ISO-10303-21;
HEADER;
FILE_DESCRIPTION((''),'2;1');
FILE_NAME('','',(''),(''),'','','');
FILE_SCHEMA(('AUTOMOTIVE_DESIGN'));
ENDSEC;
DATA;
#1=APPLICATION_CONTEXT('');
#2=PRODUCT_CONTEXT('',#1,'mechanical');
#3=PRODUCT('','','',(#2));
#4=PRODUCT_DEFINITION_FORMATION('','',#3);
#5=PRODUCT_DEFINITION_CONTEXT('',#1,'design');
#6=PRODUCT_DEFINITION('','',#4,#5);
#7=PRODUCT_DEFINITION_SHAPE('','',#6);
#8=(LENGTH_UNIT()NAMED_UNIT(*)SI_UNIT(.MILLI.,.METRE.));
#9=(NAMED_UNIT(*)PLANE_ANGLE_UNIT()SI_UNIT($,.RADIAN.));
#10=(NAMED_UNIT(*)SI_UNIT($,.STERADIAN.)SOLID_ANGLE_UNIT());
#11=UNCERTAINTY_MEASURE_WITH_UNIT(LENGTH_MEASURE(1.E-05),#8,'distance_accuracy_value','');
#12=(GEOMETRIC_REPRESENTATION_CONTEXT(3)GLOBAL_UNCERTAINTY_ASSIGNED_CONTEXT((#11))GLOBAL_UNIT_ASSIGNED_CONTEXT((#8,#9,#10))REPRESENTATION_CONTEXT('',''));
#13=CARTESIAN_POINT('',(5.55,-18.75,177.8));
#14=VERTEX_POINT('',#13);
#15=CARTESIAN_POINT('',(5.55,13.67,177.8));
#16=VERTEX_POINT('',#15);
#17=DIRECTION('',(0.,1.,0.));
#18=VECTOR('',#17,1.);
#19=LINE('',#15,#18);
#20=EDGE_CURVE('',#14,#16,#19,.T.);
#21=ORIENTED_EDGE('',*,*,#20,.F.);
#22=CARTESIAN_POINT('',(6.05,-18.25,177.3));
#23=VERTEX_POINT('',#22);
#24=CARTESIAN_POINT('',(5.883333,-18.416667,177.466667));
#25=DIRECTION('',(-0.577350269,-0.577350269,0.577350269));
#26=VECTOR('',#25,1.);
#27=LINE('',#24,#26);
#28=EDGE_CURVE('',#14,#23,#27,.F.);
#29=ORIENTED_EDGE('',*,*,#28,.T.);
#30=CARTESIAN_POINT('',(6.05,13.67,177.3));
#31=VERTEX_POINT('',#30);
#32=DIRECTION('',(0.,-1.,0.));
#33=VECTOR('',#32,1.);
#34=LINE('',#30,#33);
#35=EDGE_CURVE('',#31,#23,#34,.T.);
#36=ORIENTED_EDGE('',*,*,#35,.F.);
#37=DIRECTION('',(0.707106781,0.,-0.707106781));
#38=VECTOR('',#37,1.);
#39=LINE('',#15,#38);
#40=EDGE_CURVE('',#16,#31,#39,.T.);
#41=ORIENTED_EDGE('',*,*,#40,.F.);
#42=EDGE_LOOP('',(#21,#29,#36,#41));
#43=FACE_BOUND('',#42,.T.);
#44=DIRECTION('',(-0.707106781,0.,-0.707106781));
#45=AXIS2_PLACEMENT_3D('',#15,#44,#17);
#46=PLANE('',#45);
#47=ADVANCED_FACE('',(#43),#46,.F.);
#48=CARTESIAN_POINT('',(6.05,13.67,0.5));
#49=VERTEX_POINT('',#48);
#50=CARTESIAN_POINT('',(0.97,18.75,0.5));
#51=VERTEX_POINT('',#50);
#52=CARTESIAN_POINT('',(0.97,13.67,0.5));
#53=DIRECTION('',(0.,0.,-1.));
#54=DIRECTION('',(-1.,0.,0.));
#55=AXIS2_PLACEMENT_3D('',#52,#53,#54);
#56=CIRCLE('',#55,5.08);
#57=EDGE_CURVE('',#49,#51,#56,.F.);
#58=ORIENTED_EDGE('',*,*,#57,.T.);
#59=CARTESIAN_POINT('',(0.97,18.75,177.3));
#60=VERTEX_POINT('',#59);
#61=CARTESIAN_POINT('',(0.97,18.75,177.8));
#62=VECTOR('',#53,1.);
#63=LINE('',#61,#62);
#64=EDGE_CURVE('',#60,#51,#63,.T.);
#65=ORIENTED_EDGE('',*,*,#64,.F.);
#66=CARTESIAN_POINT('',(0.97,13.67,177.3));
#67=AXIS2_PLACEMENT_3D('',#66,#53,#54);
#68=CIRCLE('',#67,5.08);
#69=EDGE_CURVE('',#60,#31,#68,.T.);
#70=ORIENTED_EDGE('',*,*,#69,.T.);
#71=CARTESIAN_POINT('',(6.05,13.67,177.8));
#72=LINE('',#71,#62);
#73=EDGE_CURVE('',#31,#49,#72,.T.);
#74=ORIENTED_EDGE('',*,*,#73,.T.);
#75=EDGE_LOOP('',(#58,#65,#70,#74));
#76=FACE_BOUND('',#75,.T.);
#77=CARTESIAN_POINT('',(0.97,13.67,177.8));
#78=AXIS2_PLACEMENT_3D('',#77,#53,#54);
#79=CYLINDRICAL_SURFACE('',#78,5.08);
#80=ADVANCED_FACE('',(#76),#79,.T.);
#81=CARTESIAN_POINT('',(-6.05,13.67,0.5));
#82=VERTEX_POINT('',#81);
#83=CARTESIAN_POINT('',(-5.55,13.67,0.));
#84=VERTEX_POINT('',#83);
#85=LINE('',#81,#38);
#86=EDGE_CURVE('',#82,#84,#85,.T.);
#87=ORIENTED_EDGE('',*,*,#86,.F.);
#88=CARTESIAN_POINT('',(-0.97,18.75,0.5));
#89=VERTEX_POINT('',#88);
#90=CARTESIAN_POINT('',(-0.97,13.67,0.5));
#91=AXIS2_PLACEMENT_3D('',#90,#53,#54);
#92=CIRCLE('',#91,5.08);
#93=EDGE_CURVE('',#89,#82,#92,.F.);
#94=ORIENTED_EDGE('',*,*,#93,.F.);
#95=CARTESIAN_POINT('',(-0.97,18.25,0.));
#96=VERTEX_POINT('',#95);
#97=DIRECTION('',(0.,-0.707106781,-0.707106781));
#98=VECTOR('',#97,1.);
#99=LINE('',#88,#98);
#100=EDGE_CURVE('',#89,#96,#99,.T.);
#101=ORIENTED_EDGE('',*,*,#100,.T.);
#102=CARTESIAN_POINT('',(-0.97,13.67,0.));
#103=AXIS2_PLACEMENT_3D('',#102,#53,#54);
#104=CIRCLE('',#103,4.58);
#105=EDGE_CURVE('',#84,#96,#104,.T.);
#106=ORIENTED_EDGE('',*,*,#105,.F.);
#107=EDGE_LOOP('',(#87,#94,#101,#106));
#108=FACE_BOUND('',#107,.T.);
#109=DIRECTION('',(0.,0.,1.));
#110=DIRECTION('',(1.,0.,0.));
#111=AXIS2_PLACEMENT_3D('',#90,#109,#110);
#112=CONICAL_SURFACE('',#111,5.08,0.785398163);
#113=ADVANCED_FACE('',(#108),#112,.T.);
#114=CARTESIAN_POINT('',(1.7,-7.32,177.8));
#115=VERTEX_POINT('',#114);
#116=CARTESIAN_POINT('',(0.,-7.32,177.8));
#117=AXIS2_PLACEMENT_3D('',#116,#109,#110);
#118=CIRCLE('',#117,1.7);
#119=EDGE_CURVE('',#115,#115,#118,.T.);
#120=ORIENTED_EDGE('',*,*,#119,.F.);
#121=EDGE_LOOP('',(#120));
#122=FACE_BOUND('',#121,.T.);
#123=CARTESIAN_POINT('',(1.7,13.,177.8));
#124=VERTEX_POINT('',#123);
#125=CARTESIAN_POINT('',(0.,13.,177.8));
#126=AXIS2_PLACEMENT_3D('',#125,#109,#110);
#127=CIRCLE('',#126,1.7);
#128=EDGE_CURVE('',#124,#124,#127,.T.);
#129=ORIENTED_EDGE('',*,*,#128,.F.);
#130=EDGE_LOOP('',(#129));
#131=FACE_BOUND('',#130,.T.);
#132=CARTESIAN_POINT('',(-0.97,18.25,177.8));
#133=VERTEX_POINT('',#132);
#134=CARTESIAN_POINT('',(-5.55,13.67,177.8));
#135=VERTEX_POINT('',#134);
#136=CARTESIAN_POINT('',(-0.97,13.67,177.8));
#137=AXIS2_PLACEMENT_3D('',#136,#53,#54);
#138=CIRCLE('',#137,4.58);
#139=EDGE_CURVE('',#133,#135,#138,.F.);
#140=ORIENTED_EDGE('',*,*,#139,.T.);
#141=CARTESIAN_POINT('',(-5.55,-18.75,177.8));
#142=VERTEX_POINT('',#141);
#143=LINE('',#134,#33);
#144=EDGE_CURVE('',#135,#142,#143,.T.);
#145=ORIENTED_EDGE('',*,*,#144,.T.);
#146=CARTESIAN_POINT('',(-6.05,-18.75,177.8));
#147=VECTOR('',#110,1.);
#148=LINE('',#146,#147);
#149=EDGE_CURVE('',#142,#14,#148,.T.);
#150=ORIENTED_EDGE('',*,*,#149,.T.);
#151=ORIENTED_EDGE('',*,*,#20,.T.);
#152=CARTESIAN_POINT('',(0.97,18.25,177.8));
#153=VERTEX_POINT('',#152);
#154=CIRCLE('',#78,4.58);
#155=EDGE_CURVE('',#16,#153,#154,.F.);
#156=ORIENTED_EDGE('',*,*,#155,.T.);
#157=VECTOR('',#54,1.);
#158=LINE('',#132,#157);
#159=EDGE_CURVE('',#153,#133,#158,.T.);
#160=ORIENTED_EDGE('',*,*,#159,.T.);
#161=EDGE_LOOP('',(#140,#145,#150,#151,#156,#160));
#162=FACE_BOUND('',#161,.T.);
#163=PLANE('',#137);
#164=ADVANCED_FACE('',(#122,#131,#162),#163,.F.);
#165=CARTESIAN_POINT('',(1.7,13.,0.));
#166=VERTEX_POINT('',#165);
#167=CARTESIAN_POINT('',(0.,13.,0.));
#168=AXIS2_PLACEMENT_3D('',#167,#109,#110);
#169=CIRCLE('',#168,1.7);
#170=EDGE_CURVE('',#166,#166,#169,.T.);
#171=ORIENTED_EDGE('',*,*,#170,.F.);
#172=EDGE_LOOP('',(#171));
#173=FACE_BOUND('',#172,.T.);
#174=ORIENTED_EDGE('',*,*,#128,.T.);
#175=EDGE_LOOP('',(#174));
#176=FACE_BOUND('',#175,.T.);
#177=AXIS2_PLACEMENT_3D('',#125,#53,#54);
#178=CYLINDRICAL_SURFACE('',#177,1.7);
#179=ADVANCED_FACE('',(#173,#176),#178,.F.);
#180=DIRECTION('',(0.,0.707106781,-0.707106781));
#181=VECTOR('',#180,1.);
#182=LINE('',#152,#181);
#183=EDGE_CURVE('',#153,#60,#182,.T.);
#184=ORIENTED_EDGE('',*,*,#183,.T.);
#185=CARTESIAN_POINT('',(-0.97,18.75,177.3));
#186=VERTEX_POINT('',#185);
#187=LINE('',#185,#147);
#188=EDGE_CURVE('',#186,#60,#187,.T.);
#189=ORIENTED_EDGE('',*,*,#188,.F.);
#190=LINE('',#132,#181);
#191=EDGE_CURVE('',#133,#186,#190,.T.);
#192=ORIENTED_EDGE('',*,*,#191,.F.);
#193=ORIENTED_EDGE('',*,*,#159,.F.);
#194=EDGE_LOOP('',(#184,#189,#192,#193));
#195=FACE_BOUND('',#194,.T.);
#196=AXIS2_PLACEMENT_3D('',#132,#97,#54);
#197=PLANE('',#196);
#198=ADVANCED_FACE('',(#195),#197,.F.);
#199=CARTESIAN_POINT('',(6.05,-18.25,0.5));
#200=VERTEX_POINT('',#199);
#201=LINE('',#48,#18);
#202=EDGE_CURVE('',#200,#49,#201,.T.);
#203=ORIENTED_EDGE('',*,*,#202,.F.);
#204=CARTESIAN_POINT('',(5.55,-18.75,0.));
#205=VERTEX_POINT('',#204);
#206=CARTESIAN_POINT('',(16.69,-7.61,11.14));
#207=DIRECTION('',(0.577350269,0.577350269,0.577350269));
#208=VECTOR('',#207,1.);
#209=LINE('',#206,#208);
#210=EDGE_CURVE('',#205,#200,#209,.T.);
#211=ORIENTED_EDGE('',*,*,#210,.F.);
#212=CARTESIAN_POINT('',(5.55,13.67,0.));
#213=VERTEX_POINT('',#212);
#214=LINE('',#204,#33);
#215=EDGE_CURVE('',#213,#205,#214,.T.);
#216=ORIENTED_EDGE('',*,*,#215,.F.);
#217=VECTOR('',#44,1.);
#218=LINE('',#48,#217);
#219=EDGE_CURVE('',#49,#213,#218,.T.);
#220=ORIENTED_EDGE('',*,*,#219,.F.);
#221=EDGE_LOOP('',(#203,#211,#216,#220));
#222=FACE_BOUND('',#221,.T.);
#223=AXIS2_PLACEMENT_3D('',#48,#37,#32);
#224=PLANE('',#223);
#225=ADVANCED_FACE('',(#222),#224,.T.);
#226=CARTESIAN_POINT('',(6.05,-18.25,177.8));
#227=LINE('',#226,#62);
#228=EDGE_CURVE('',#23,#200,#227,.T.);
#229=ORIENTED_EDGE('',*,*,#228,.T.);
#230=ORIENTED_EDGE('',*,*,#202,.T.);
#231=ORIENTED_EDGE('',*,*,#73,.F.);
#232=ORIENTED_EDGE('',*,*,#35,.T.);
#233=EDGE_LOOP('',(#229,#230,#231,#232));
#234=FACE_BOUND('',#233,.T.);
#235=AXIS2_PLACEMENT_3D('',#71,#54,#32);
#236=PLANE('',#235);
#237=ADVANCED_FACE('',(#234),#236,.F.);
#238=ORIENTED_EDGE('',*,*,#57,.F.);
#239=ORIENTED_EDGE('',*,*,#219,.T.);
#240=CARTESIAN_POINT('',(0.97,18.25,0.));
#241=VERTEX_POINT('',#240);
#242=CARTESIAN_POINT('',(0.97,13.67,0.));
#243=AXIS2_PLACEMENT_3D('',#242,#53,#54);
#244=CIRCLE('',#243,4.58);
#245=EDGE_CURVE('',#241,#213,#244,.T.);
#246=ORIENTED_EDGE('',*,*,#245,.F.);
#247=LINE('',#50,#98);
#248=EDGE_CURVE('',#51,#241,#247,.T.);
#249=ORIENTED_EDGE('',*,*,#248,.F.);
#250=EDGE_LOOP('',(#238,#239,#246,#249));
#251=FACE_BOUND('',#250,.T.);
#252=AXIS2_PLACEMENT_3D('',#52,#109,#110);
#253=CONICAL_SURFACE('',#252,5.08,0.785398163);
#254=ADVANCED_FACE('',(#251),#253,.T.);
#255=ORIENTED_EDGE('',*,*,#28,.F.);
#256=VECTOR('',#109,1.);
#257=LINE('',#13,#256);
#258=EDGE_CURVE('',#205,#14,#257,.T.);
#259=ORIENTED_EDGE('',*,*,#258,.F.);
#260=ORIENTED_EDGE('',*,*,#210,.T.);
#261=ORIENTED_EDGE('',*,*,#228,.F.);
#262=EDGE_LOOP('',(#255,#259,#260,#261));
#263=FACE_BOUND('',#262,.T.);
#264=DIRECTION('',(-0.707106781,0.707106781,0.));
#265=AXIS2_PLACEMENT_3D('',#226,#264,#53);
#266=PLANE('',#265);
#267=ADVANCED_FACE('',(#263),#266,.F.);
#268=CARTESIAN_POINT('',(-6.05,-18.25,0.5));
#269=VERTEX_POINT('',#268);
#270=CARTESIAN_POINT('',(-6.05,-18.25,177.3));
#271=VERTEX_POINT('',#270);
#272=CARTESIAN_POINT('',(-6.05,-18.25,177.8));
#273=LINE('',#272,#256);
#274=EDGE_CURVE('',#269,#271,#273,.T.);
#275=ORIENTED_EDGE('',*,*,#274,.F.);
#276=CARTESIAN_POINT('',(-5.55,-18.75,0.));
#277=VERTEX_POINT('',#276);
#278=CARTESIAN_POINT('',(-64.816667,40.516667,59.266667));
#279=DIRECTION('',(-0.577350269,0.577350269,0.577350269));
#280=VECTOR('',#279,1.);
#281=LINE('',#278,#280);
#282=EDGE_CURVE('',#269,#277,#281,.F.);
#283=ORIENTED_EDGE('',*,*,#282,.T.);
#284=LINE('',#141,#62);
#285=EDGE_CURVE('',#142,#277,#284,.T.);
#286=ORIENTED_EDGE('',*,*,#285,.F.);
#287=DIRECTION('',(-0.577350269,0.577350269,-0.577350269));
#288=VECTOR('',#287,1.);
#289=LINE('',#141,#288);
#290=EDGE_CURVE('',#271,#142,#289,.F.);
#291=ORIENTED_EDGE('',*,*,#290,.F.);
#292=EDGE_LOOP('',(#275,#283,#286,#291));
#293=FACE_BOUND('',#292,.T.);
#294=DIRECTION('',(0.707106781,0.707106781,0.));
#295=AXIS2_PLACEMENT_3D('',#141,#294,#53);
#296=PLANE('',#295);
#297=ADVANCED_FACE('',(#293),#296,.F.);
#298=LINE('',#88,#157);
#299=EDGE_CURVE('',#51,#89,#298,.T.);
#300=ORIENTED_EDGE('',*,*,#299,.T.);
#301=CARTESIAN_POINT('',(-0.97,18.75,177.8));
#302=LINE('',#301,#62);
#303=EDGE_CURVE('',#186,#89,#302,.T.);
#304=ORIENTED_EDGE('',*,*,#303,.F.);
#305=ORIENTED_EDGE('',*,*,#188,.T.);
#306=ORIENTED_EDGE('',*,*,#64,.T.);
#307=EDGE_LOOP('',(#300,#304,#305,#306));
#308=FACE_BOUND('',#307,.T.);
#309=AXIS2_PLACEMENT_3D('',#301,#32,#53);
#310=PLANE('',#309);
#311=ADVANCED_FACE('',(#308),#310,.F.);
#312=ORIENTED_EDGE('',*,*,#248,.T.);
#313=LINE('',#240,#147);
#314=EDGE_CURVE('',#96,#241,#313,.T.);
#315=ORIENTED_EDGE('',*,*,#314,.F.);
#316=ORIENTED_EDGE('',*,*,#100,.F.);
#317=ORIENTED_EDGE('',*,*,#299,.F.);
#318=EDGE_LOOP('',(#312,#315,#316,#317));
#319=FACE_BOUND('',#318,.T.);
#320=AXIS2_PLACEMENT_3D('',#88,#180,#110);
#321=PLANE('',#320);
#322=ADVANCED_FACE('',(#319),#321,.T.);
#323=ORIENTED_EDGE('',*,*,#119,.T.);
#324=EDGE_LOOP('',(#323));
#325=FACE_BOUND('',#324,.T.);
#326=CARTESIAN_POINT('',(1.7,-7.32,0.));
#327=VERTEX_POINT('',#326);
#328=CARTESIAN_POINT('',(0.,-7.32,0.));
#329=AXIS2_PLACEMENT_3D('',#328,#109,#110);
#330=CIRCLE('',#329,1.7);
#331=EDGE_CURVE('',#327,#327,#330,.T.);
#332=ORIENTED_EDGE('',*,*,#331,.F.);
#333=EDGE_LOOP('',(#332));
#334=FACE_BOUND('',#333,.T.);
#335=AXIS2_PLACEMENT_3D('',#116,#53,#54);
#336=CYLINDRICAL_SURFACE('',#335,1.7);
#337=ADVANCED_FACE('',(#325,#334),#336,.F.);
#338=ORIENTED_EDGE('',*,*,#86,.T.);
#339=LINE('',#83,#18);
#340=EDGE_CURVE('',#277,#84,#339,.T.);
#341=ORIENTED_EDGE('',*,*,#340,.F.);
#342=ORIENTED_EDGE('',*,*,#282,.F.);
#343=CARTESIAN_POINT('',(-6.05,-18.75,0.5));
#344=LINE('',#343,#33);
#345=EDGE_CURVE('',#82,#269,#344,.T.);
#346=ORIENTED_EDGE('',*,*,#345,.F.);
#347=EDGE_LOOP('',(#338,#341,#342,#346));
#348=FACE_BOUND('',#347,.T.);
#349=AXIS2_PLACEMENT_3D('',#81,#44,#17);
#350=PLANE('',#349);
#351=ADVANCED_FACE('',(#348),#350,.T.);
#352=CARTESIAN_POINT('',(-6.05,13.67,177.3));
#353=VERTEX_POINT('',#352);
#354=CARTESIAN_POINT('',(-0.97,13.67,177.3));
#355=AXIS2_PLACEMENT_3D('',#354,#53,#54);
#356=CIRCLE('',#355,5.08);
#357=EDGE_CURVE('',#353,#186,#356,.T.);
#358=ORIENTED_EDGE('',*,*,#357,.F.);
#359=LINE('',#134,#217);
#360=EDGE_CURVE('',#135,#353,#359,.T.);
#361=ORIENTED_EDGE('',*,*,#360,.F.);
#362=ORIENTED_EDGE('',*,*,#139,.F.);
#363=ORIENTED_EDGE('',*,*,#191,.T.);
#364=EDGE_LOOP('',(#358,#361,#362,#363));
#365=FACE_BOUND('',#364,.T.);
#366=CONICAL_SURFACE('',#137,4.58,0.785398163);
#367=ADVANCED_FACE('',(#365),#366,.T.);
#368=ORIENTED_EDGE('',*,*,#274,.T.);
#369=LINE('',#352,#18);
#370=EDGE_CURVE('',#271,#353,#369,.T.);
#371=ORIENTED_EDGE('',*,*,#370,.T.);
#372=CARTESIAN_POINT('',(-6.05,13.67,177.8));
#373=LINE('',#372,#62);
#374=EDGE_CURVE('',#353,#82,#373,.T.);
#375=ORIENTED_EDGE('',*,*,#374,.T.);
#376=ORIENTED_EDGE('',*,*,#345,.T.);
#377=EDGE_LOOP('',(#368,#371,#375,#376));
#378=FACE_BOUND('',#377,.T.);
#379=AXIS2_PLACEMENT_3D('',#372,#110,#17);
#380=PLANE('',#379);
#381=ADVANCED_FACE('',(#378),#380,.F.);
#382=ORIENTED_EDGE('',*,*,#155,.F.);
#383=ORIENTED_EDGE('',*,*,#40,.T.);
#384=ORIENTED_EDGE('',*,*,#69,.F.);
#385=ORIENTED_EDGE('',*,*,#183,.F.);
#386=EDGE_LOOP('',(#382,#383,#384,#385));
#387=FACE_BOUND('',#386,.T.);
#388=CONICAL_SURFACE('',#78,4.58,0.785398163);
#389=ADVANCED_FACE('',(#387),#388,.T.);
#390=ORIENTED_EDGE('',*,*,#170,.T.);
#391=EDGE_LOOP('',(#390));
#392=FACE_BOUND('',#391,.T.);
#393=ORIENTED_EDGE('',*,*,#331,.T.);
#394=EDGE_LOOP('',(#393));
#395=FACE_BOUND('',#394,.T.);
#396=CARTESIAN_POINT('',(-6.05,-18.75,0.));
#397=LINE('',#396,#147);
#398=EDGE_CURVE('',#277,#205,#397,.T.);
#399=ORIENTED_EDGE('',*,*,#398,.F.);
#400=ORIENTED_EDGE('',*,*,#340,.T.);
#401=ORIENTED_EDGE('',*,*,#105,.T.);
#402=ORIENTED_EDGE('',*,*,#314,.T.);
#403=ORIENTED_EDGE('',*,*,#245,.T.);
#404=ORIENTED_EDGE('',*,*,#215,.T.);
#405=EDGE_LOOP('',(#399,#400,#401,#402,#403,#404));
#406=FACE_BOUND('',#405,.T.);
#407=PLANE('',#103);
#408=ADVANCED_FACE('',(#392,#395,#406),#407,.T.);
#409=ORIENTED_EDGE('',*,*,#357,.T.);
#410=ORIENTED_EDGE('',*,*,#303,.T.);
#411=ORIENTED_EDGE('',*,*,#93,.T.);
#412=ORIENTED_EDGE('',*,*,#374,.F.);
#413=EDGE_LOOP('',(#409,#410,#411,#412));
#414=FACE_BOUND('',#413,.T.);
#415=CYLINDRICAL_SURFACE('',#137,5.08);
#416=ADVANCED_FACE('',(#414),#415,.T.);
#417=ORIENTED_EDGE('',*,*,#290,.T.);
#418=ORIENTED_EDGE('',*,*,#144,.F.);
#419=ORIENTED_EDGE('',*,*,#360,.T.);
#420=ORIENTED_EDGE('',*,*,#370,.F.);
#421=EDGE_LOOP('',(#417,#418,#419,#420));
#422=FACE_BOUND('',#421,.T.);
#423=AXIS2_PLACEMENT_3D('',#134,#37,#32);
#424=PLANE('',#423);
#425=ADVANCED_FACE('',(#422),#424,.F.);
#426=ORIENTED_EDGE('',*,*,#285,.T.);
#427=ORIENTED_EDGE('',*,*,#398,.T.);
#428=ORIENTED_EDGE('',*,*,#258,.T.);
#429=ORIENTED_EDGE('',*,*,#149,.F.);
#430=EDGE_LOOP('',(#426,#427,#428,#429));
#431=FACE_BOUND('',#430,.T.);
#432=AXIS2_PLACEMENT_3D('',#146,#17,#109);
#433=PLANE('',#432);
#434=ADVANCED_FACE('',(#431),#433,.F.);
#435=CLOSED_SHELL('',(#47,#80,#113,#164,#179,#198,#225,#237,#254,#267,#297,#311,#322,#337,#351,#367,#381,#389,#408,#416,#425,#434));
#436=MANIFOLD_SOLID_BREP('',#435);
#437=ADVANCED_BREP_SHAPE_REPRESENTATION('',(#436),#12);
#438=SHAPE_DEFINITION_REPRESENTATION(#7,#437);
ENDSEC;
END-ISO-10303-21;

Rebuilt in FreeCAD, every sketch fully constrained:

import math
import FreeCAD as App
import Part
import Sketcher

V = App.Vector


def edges_at(feature, points):
    """Names of the edges that pass closest to the given points."""
    edges = feature.Shape.Edges
    near = lambda p: min(range(len(edges)), key=lambda i: edges[i].distToShape(Part.Vertex(*p))[0])
    return sorted({f"Edge{near(p) + 1}" for p in points})

doc = App.newDocument("Part")
body = doc.addObject("PartDesign::Body", "Body")

# Sketch on XY plane
sketch1 = doc.addObject("Sketcher::SketchObject", "Sketch")
body.addObject(sketch1)
sketch1.AttachmentSupport = (doc.XY_Plane, [""])
sketch1.MapMode = "FlatFace"
sketch1.addGeometry([
    Part.LineSegment(V(0.97, 18.75, 0), V(-0.97, 18.75, 0)),  # 0
    Part.ArcOfCircle(Part.Circle(V(-0.97, 13.67, 0), V(0, 0, 1), 5.08), math.radians(90), math.radians(180)),  # 1
    Part.LineSegment(V(-6.05, 13.67, 0), V(-6.05, -18.75, 0)),  # 2
    Part.LineSegment(V(-6.05, -18.75, 0), V(6.05, -18.75, 0)),  # 3
    Part.LineSegment(V(6.05, -18.75, 0), V(6.05, 13.67, 0)),  # 4
    Part.ArcOfCircle(Part.Circle(V(0.97, 13.67, 0), V(0, 0, 1), 5.08), math.radians(0), math.radians(90)),  # 5
    Part.Circle(V(0, -7.32, 0), V(0, 0, 1), 1.7),  # 6
    Part.Circle(V(0, 13, 0), V(0, 0, 1), 1.7),  # 7
], False)
sketch1.addConstraint([
    Sketcher.Constraint("Tangent", 0, 2, 1, 1),
    Sketcher.Constraint("Tangent", 1, 2, 2, 1),
    Sketcher.Constraint("Coincident", 2, 2, 3, 1),
    Sketcher.Constraint("Coincident", 3, 2, 4, 1),
    Sketcher.Constraint("Tangent", 4, 2, 5, 1),
    Sketcher.Constraint("Tangent", 5, 2, 0, 1),
    Sketcher.Constraint("Horizontal", 0),
    Sketcher.Constraint("Vertical", 2),
    Sketcher.Constraint("Horizontal", 3),
    Sketcher.Constraint("Vertical", 4),
    Sketcher.Constraint("Equal", 1, 5),
    Sketcher.Constraint("Equal", 6, 7),
    Sketcher.Constraint("PointOnObject", 6, 3, -2),
    Sketcher.Constraint("PointOnObject", 7, 3, -2),
    Sketcher.Constraint("Diameter", 6, 3.4),
    Sketcher.Constraint("Radius", 1, 5.08),
    Sketcher.Constraint("DistanceX", 3, 1, 3, 2, 12.1),
    Sketcher.Constraint("DistanceY", -1, 1, 7, 3, 13.0),
    Sketcher.Constraint("DistanceY", 2, 2, 2, 1, 32.42),
    Sketcher.Constraint("DistanceX", 1, 3, -1, 1, 0.97),
    Sketcher.Constraint("DistanceY", -1, 1, 1, 3, 13.67),
    Sketcher.Constraint("DistanceY", 6, 3, -1, 1, 7.32),
])
pad1 = doc.addObject("PartDesign::Pad", "Pad")
body.addObject(pad1)
pad1.Profile = sketch1
pad1.Length = 177.8
doc.recompute()

chamfer = doc.addObject("PartDesign::Chamfer", "Chamfer")
body.addObject(chamfer)
chamfer.Base = (pad1, edges_at(pad1, [
    (6.05, -18.75, 88.9),
    (-6.05, -18.75, 88.9),
    (0, 18.75, 177.8),
    (-4.562, 17.262, 177.8),
    (-6.05, -2.54, 177.8),
    (6.05, -2.54, 177.8),
    (-6.05, -2.54, 0),
    (-4.562, 17.262, 0),
    (0, 18.75, 0),
    (4.562, 17.262, 0),
    (6.05, -2.54, 0),
    (4.562, 17.262, 177.8),
]))
chamfer.Size = 0.5

doc.recompute()
